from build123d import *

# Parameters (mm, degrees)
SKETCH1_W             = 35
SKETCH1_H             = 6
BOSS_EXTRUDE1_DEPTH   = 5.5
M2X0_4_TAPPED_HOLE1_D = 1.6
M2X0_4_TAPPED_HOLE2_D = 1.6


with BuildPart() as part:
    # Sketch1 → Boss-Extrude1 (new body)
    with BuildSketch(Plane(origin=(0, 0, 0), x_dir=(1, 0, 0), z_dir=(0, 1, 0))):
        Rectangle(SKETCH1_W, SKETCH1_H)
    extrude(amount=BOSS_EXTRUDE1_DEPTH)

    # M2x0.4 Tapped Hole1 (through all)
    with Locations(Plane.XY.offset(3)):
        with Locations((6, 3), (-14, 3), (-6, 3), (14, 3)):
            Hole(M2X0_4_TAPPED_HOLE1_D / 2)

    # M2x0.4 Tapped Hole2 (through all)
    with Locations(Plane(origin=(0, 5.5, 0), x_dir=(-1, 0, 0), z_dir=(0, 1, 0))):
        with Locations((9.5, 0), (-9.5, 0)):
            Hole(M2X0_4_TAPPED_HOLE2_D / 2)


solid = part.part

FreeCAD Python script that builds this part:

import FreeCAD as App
import Part
import Sketcher

V = App.Vector

doc = App.newDocument("Part")
body = doc.addObject("PartDesign::Body", "Body")

# Sketch on XZ plane
sketch1 = body.newObject("Sketcher::SketchObject", "Sketch")
sketch1.AttachmentSupport = (doc.getObject("XZ_Plane"), [""])
sketch1.MapMode = "FlatFace"
sketch1.addGeometry(Part.LineSegment(V(-18, -3, 0), V(-18, 3, 0)), False)
sketch1.addGeometry(Part.LineSegment(V(-18, 3, 0), V(18, 3, 0)), False)
sketch1.addGeometry(Part.LineSegment(V(18, 3, 0), V(18, -3, 0)), False)
sketch1.addGeometry(Part.LineSegment(V(18, -3, 0), V(-18, -3, 0)), False)
sketch1.addConstraint(Sketcher.Constraint("Coincident", 0, 2, 1, 1))
sketch1.addConstraint(Sketcher.Constraint("Coincident", 1, 2, 2, 1))
sketch1.addConstraint(Sketcher.Constraint("Coincident", 2, 2, 3, 1))
sketch1.addConstraint(Sketcher.Constraint("Coincident", 3, 2, 0, 1))
sketch1.addConstraint(Sketcher.Constraint("Vertical", 0))
sketch1.addConstraint(Sketcher.Constraint("Horizontal", 1))
sketch1.addConstraint(Sketcher.Constraint("Vertical", 2))
sketch1.addConstraint(Sketcher.Constraint("Horizontal", 3))
sketch1.addConstraint(Sketcher.Constraint("Symmetric", 0, 2, 2, 2, -1, 1))
sketch1.addConstraint(Sketcher.Constraint("DistanceX", 1, 1, 1, 2, 35.0))
sketch1.addConstraint(Sketcher.Constraint("DistanceY", 0, 1, 0, 2, 6.0))
pad1 = body.newObject("PartDesign::Pad", "Pad")
pad1.Profile = sketch1
pad1.Length = 5.5
pad1.Reversed = True

# Sketch on XY plane
sketch2 = body.newObject("Sketcher::SketchObject", "Sketch001")
sketch2.AttachmentSupport = (doc.getObject("XY_Plane"), [""])
sketch2.MapMode = "FlatFace"
sketch2.AttachmentOffset = App.Placement(V(0, 0, 3), App.Rotation())
sketch2.addGeometry(Part.Circle(V(6, 3, 0), V(0, 0, 1), 0.8), False)
sketch2.addGeometry(Part.Circle(V(-14, 3, 0), V(0, 0, 1), 0.8), False)
sketch2.addGeometry(Part.Circle(V(-6, 3, 0), V(0, 0, 1), 0.8), False)
sketch2.addGeometry(Part.Circle(V(14, 3, 0), V(0, 0, 1), 0.8), False)
sketch2.addConstraint(Sketcher.Constraint("Equal", 0, 1))
sketch2.addConstraint(Sketcher.Constraint("Equal", 1, 2))
sketch2.addConstraint(Sketcher.Constraint("Equal", 2, 3))
sketch2.addConstraint(Sketcher.Constraint("Symmetric", 0, 3, 2, 3, -2))
sketch2.addConstraint(Sketcher.Constraint("Symmetric", 1, 3, 3, 3, -2))
sketch2.addConstraint(Sketcher.Constraint("Horizontal", 0, 3, 1, 3))
sketch2.addConstraint(Sketcher.Constraint("Diameter", 0, 1.6))
sketch2.addConstraint(Sketcher.Constraint("DistanceX", -1, 1, 0, 3, 6.0))
sketch2.addConstraint(Sketcher.Constraint("DistanceY", -1, 1, 0, 3, 3.0))
sketch2.addConstraint(Sketcher.Constraint("DistanceX", 1, 3, -1, 1, 14.0))
doc.recompute()
hole = body.newObject("PartDesign::Hole", "Hole")
hole.Profile = sketch2
hole.ThreadType = "None"
hole.Diameter = 1.6
hole.DepthType = "ThroughAll"

# Sketch on XZ plane
sketch3 = body.newObject("Sketcher::SketchObject", "Sketch002")
sketch3.AttachmentSupport = (doc.getObject("XZ_Plane"), [""])
sketch3.MapMode = "FlatFace"
sketch3.AttachmentOffset = App.Placement(V(0, 0, -5.5), App.Rotation())
sketch3.addGeometry(Part.Circle(V(-9.5, 0, 0), V(0, 0, 1), 0.8), False)
sketch3.addGeometry(Part.Circle(V(9.5, 0, 0), V(0, 0, 1), 0.8), False)
sketch3.addConstraint(Sketcher.Constraint("Equal", 0, 1))
sketch3.addConstraint(Sketcher.Constraint("Symmetric", 0, 3, 1, 3, -1, 1))
sketch3.addConstraint(Sketcher.Constraint("PointOnObject", 0, 3, -1))
sketch3.addConstraint(Sketcher.Constraint("Diameter", 0, 1.6))
sketch3.addConstraint(Sketcher.Constraint("DistanceX", 0, 3, 1, 3, 19.0))
doc.recompute()
hole2 = body.newObject("PartDesign::Hole", "Hole001")
hole2.Profile = sketch3
hole2.ThreadType = "None"
hole2.Diameter = 1.6
hole2.DepthType = "ThroughAll"
hole2.Reversed = True

doc.recompute()
